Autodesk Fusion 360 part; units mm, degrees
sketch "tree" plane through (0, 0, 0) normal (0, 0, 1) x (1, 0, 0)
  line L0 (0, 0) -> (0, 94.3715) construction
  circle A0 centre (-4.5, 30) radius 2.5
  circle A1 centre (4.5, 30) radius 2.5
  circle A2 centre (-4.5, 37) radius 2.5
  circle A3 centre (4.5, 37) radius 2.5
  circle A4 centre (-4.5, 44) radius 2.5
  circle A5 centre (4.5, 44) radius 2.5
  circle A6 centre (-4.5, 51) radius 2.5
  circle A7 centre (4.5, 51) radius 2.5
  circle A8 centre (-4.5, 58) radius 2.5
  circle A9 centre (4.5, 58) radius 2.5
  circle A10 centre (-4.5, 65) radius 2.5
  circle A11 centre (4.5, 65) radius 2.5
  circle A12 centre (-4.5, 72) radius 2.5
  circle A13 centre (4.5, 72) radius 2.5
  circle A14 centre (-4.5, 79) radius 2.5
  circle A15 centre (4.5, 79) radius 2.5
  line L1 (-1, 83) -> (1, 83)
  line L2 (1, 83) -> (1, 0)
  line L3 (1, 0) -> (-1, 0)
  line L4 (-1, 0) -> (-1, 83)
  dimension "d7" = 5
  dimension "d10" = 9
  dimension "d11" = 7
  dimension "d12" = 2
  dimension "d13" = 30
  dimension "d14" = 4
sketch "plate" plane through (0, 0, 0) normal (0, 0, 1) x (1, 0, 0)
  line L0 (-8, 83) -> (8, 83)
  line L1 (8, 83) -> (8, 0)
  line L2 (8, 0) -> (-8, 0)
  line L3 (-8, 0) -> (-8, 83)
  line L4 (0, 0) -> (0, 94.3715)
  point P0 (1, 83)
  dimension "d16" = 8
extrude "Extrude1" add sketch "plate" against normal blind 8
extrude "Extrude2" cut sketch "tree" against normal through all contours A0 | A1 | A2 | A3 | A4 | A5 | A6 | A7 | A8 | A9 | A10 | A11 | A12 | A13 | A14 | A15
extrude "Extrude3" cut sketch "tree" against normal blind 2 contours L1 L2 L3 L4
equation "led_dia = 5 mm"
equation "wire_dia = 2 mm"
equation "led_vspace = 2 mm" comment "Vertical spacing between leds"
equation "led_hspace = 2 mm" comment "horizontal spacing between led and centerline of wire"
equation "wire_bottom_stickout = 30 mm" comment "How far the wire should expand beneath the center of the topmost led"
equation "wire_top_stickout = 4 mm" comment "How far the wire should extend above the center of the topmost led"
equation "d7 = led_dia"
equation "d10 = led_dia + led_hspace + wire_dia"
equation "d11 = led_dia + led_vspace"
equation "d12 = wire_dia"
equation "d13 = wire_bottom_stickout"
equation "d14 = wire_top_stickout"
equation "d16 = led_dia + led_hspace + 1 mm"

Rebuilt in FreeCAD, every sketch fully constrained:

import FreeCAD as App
import Part
import Sketcher

V = App.Vector
Q = App.Units.Quantity

doc = App.newDocument("Part")
body = doc.addObject("PartDesign::Body", "Body")

sketch1 = doc.addObject("Sketcher::SketchObject", "Sketch")
body.addObject(sketch1)
sketch1.AttachmentSupport = (doc.XY_Plane, [""])
sketch1.MapMode = "FlatFace"
sketch1.addGeometry(Part.LineSegment(V(-8, 83, 0), V(-8, 0, 0)), False)
sketch1.addGeometry(Part.LineSegment(V(-8, 0, 0), V(8, 0, 0)), False)
sketch1.addGeometry(Part.LineSegment(V(8, 0, 0), V(8, 83, 0)), False)
sketch1.addGeometry(Part.LineSegment(V(8, 83, 0), V(-8, 83, 0)), False)
sketch1.addConstraint(Sketcher.Constraint("Coincident", 0, 2, 1, 1))
sketch1.addConstraint(Sketcher.Constraint("Coincident", 1, 2, 2, 1))
sketch1.addConstraint(Sketcher.Constraint("Coincident", 2, 2, 3, 1))
sketch1.addConstraint(Sketcher.Constraint("Coincident", 3, 2, 0, 1))
sketch1.addConstraint(Sketcher.Constraint("Vertical", 0))
sketch1.addConstraint(Sketcher.Constraint("Horizontal", 1))
sketch1.addConstraint(Sketcher.Constraint("Vertical", 2))
sketch1.addConstraint(Sketcher.Constraint("Horizontal", 3))
sketch1.addConstraint(Sketcher.Constraint("Symmetric", 0, 2, 1, 2, -1, 1))
sketch1.addConstraint(Sketcher.Constraint("DistanceX", 0, 2, -1, 1, Q("8 mm")))
sketch1.addConstraint(Sketcher.Constraint("DistanceY", 0, 2, 0, 1, Q("83 mm")))
pad1 = doc.addObject("PartDesign::Pad", "Pad")
body.addObject(pad1)
pad1.Profile = sketch1
pad1.Length = 8
pad1.Reversed = True

sketch2 = doc.addObject("Sketcher::SketchObject", "Sketch001")
body.addObject(sketch2)
sketch2.AttachmentSupport = (doc.XY_Plane, [""])
sketch2.MapMode = "FlatFace"
sketch2.addGeometry(Part.Circle(V(-4.5, 30, 0), V(0, 0, 1), 2.5), False)
sketch2.addGeometry(Part.Circle(V(4.5, 30, 0), V(0, 0, 1), 2.5), False)
sketch2.addGeometry(Part.Circle(V(-4.5, 37, 0), V(0, 0, 1), 2.5), False)
sketch2.addGeometry(Part.Circle(V(4.5, 37, 0), V(0, 0, 1), 2.5), False)
sketch2.addGeometry(Part.Circle(V(-4.5, 44, 0), V(0, 0, 1), 2.5), False)
sketch2.addGeometry(Part.Circle(V(4.5, 44, 0), V(0, 0, 1), 2.5), False)
sketch2.addGeometry(Part.Circle(V(-4.5, 51, 0), V(0, 0, 1), 2.5), False)
sketch2.addGeometry(Part.Circle(V(4.5, 51, 0), V(0, 0, 1), 2.5), False)
sketch2.addGeometry(Part.Circle(V(-4.5, 58, 0), V(0, 0, 1), 2.5), False)
sketch2.addGeometry(Part.Circle(V(4.5, 58, 0), V(0, 0, 1), 2.5), False)
sketch2.addGeometry(Part.Circle(V(-4.5, 65, 0), V(0, 0, 1), 2.5), False)
sketch2.addGeometry(Part.Circle(V(4.5, 65, 0), V(0, 0, 1), 2.5), False)
sketch2.addGeometry(Part.Circle(V(-4.5, 72, 0), V(0, 0, 1), 2.5), False)
sketch2.addGeometry(Part.Circle(V(4.5, 72, 0), V(0, 0, 1), 2.5), False)
sketch2.addGeometry(Part.Circle(V(-4.5, 79, 0), V(0, 0, 1), 2.5), False)
sketch2.addGeometry(Part.Circle(V(4.5, 79, 0), V(0, 0, 1), 2.5), False)
sketch2.addConstraint(Sketcher.Constraint("Equal", 0, 1))
sketch2.addConstraint(Sketcher.Constraint("Equal", 1, 2))
sketch2.addConstraint(Sketcher.Constraint("Equal", 2, 3))
sketch2.addConstraint(Sketcher.Constraint("Equal", 3, 4))
sketch2.addConstraint(Sketcher.Constraint("Equal", 4, 5))
sketch2.addConstraint(Sketcher.Constraint("Equal", 5, 6))
sketch2.addConstraint(Sketcher.Constraint("Equal", 6, 7))
sketch2.addConstraint(Sketcher.Constraint("Equal", 7, 8))
sketch2.addConstraint(Sketcher.Constraint("Equal", 8, 9))
sketch2.addConstraint(Sketcher.Constraint("Equal", 9, 10))
sketch2.addConstraint(Sketcher.Constraint("Equal", 10, 11))
sketch2.addConstraint(Sketcher.Constraint("Equal", 11, 12))
sketch2.addConstraint(Sketcher.Constraint("Equal", 12, 13))
sketch2.addConstraint(Sketcher.Constraint("Equal", 13, 14))
sketch2.addConstraint(Sketcher.Constraint("Equal", 14, 15))
sketch2.addConstraint(Sketcher.Constraint("Symmetric", 0, 3, 1, 3, -2))
sketch2.addConstraint(Sketcher.Constraint("Symmetric", 2, 3, 3, 3, -2))
sketch2.addConstraint(Sketcher.Constraint("Symmetric", 4, 3, 5, 3, -2))
sketch2.addConstraint(Sketcher.Constraint("Symmetric", 6, 3, 7, 3, -2))
sketch2.addConstraint(Sketcher.Constraint("Symmetric", 8, 3, 9, 3, -2))
sketch2.addConstraint(Sketcher.Constraint("Symmetric", 10, 3, 11, 3, -2))
sketch2.addConstraint(Sketcher.Constraint("Symmetric", 12, 3, 13, 3, -2))
sketch2.addConstraint(Sketcher.Constraint("Symmetric", 14, 3, 15, 3, -2))
sketch2.addConstraint(Sketcher.Constraint("Vertical", 0, 3, 2, 3))
sketch2.addConstraint(Sketcher.Constraint("Vertical", 2, 3, 4, 3))
sketch2.addConstraint(Sketcher.Constraint("Vertical", 4, 3, 6, 3))
sketch2.addConstraint(Sketcher.Constraint("Vertical", 6, 3, 8, 3))
sketch2.addConstraint(Sketcher.Constraint("Vertical", 8, 3, 10, 3))
sketch2.addConstraint(Sketcher.Constraint("Vertical", 10, 3, 12, 3))
sketch2.addConstraint(Sketcher.Constraint("Vertical", 12, 3, 14, 3))
sketch2.addConstraint(Sketcher.Constraint("Diameter", 0, Q("5 mm")))
sketch2.addConstraint(Sketcher.Constraint("DistanceY", -1, 1, 0, 3, Q("30 mm")))
sketch2.addConstraint(Sketcher.Constraint("DistanceX", 0, 3, 1, 3, Q("9 mm")))
sketch2.addConstraint(Sketcher.Constraint("DistanceY", 0, 3, 2, 3, Q("7 mm")))
sketch2.addConstraint(Sketcher.Constraint("DistanceY", 2, 3, 4, 3, Q("7 mm")))
sketch2.addConstraint(Sketcher.Constraint("DistanceY", 4, 3, 6, 3, Q("7 mm")))
sketch2.addConstraint(Sketcher.Constraint("DistanceY", 6, 3, 8, 3, Q("7 mm")))
sketch2.addConstraint(Sketcher.Constraint("DistanceY", 8, 3, 10, 3, Q("7 mm")))
sketch2.addConstraint(Sketcher.Constraint("DistanceY", 10, 3, 12, 3, Q("7 mm")))
sketch2.addConstraint(Sketcher.Constraint("DistanceY", 12, 3, 14, 3, Q("7 mm")))
pocket1 = doc.addObject("PartDesign::Pocket", "Pocket")
body.addObject(pocket1)
pocket1.Profile = sketch2
pocket1.Type = "ThroughAll"

sketch3 = doc.addObject("Sketcher::SketchObject", "Sketch002")
body.addObject(sketch3)
sketch3.AttachmentSupport = (doc.XY_Plane, [""])
sketch3.MapMode = "FlatFace"
sketch3.addGeometry(Part.LineSegment(V(1, 83, 0), V(-1, 83, 0)), False)
sketch3.addGeometry(Part.LineSegment(V(-1, 83, 0), V(-1, 0, 0)), False)
sketch3.addGeometry(Part.LineSegment(V(-1, 0, 0), V(1, 0, 0)), False)
sketch3.addGeometry(Part.LineSegment(V(1, 0, 0), V(1, 83, 0)), False)
sketch3.addConstraint(Sketcher.Constraint("Coincident", 0, 2, 1, 1))
sketch3.addConstraint(Sketcher.Constraint("Coincident", 1, 2, 2, 1))
sketch3.addConstraint(Sketcher.Constraint("Coincident", 2, 2, 3, 1))
sketch3.addConstraint(Sketcher.Constraint("Coincident", 3, 2, 0, 1))
sketch3.addConstraint(Sketcher.Constraint("Horizontal", 0))
sketch3.addConstraint(Sketcher.Constraint("Vertical", 1))
sketch3.addConstraint(Sketcher.Constraint("Horizontal", 2))
sketch3.addConstraint(Sketcher.Constraint("Vertical", 3))
sketch3.addConstraint(Sketcher.Constraint("Symmetric", 1, 2, 2, 2, -1, 1))
sketch3.addConstraint(Sketcher.Constraint("DistanceX", 0, 2, 0, 1, Q("2 mm")))
sketch3.addConstraint(Sketcher.Constraint("DistanceY", 1, 2, 1, 1, Q("83 mm")))
pocket2 = doc.addObject("PartDesign::Pocket", "Pocket001")
body.addObject(pocket2)
pocket2.Profile = sketch3
pocket2.Length = 2

doc.recompute()
